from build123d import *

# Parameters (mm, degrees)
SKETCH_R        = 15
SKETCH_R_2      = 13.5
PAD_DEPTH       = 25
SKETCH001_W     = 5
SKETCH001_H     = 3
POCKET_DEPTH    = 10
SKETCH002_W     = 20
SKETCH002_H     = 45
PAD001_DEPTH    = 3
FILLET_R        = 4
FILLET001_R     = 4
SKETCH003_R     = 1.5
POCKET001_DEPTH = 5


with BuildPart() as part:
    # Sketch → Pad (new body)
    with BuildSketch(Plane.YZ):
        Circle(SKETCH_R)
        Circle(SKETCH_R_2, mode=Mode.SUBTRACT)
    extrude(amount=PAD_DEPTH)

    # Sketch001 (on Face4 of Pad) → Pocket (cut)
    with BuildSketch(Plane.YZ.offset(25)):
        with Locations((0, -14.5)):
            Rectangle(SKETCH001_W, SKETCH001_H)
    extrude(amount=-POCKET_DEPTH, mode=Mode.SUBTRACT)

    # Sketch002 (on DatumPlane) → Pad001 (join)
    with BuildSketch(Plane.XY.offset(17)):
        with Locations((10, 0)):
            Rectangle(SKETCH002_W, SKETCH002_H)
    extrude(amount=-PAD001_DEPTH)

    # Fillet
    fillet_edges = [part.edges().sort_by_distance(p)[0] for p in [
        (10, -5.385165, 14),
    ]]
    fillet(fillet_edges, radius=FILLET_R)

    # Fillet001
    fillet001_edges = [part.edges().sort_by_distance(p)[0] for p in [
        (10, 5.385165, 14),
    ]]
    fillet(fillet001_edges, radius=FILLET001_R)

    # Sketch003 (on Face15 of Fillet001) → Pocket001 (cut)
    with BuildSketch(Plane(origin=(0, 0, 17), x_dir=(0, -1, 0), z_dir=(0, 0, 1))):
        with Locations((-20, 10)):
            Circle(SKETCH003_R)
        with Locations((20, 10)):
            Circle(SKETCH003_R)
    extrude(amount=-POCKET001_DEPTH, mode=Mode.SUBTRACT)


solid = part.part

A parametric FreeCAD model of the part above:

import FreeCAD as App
import Part
import Sketcher
from FreeCAD import Vector


def edges_at(feature, points):
    """Names of the edges that pass closest to the given points."""
    edges = feature.Shape.Edges
    near = lambda p: min(range(len(edges)), key=lambda i: edges[i].distToShape(Part.Vertex(*p))[0])
    return sorted({f"Edge{near(p) + 1}" for p in points})


def add_polygon(sketch, points):
    """Adds a closed chain of lines whose ends are joined by coincident constraints."""
    first, n = sketch.GeometryCount, len(points)
    for a, b in zip(points, points[1:] + points[:1]):
        sketch.addGeometry(Part.LineSegment(App.Vector(*a, 0), App.Vector(*b, 0)), False)
    for i in range(n):
        sketch.addConstraint(Sketcher.Constraint("Coincident", first + i, 2, first + (i + 1) % n, 1))

doc = App.newDocument("Part")
body = doc.addObject("PartDesign::Body", "Body")

# Sketch on YZ plane
sketch1 = doc.addObject("Sketcher::SketchObject", "Sketch")
body.addObject(sketch1)
sketch1.AttachmentSupport = (doc.YZ_Plane, [""])
sketch1.MapMode = "FlatFace"
sketch1.addGeometry([
    Part.Circle(Vector(0, 0, 0), Vector(0, 0, 1), 15),
    Part.Circle(Vector(0, 0, 0), Vector(0, 0, 1), 14),
], False)
sketch1.addConstraint([
    Sketcher.Constraint("Coincident", 0, 3, -1, 1),
    Sketcher.Constraint("Coincident", 1, 3, -1, 1),
    Sketcher.Constraint("Diameter", 0, 30.0),
    Sketcher.Constraint("Diameter", 1, 27.0),
])
pad1 = doc.addObject("PartDesign::Pad", "Pad")
body.addObject(pad1)
pad1.Profile = sketch1
pad1.Length = 25

# Sketch on YZ plane
sketch2 = doc.addObject("Sketcher::SketchObject", "Sketch001")
body.addObject(sketch2)
sketch2.AttachmentSupport = (doc.YZ_Plane, [""])
sketch2.MapMode = "FlatFace"
sketch2.AttachmentOffset = App.Placement(Vector(0, 0, 25), App.Rotation())
add_polygon(sketch2, [(-2.5, -13), (-2.5, -16), (2.5, -16), (2.5, -13)])  # lines 0-3
sketch2.addConstraint([
    Sketcher.Constraint("Vertical", 0),
    Sketcher.Constraint("Horizontal", 1),
    Sketcher.Constraint("Vertical", 2),
    Sketcher.Constraint("Horizontal", 3),
    Sketcher.Constraint("DistanceX", 1, 1, 1, 2, 5.0),
    Sketcher.Constraint("DistanceY", 0, 2, 0, 1, 3.0),
    Sketcher.Constraint("DistanceY", 0, 2, -1, 1, 16.0),
    Sketcher.Constraint("DistanceX", 0, 2, -1, 1, 2.5),
])
pocket1 = doc.addObject("PartDesign::Pocket", "Pocket")
body.addObject(pocket1)
pocket1.Profile = sketch2
pocket1.Length = 10

# Sketch on XY plane
sketch3 = doc.addObject("Sketcher::SketchObject", "Sketch002")
body.addObject(sketch3)
sketch3.AttachmentSupport = (doc.XY_Plane, [""])
sketch3.MapMode = "FlatFace"
sketch3.AttachmentOffset = App.Placement(Vector(0, 0, 17), App.Rotation())
add_polygon(sketch3, [(0, 22), (0, -22), (20, -22), (20, 22)])  # lines 0-3
sketch3.addConstraint([
    Sketcher.Constraint("Vertical", 0),
    Sketcher.Constraint("Horizontal", 1),
    Sketcher.Constraint("Vertical", 2),
    Sketcher.Constraint("Horizontal", 3),
    Sketcher.Constraint("Symmetric", 0, 2, 3, 2, -1, 1),
    Sketcher.Constraint("DistanceX", 1, 1, 1, 2, 20.0),
    Sketcher.Constraint("DistanceY", 0, 2, 0, 1, 45.0),
])
pad2 = doc.addObject("PartDesign::Pad", "Pad001")
body.addObject(pad2)
pad2.Profile = sketch3
pad2.Length = 3
pad2.Reversed = True
doc.recompute()

fillet = doc.addObject("PartDesign::Fillet", "Fillet")
body.addObject(fillet)
fillet.Base = (pad2, edges_at(pad2, [(10, -5.385, 14)]))
fillet.Radius = 4
doc.recompute()

fillet2 = doc.addObject("PartDesign::Fillet", "Fillet001")
body.addObject(fillet2)
fillet2.Base = (fillet, edges_at(fillet, [(10, 5.385, 14)]))
fillet2.Radius = 4

# Sketch on XY plane
sketch4 = doc.addObject("Sketcher::SketchObject", "Sketch003")
body.addObject(sketch4)
sketch4.AttachmentSupport = (doc.XY_Plane, [""])
sketch4.MapMode = "FlatFace"
sketch4.AttachmentOffset = App.Placement(Vector(0, 0, 17), App.Rotation())
sketch4.addGeometry([
    Part.Circle(Vector(10, 20, 0), Vector(0, 0, 1), 1.5),
    Part.Circle(Vector(10, -20, 0), Vector(0, 0, 1), 1.5),
], False)
sketch4.addConstraint([
    Sketcher.Constraint("Equal", 0, 1),
    Sketcher.Constraint("Symmetric", 0, 3, 1, 3, -1),
    Sketcher.Constraint("Diameter", 0, 3.0),
    Sketcher.Constraint("DistanceX", -1, 1, 0, 3, 10.0),
    Sketcher.Constraint("DistanceY", -1, 1, 0, 3, 20.0),
])
pocket2 = doc.addObject("PartDesign::Pocket", "Pocket001")
body.addObject(pocket2)
pocket2.Profile = sketch4
pocket2.Length = 5

doc.recompute()
